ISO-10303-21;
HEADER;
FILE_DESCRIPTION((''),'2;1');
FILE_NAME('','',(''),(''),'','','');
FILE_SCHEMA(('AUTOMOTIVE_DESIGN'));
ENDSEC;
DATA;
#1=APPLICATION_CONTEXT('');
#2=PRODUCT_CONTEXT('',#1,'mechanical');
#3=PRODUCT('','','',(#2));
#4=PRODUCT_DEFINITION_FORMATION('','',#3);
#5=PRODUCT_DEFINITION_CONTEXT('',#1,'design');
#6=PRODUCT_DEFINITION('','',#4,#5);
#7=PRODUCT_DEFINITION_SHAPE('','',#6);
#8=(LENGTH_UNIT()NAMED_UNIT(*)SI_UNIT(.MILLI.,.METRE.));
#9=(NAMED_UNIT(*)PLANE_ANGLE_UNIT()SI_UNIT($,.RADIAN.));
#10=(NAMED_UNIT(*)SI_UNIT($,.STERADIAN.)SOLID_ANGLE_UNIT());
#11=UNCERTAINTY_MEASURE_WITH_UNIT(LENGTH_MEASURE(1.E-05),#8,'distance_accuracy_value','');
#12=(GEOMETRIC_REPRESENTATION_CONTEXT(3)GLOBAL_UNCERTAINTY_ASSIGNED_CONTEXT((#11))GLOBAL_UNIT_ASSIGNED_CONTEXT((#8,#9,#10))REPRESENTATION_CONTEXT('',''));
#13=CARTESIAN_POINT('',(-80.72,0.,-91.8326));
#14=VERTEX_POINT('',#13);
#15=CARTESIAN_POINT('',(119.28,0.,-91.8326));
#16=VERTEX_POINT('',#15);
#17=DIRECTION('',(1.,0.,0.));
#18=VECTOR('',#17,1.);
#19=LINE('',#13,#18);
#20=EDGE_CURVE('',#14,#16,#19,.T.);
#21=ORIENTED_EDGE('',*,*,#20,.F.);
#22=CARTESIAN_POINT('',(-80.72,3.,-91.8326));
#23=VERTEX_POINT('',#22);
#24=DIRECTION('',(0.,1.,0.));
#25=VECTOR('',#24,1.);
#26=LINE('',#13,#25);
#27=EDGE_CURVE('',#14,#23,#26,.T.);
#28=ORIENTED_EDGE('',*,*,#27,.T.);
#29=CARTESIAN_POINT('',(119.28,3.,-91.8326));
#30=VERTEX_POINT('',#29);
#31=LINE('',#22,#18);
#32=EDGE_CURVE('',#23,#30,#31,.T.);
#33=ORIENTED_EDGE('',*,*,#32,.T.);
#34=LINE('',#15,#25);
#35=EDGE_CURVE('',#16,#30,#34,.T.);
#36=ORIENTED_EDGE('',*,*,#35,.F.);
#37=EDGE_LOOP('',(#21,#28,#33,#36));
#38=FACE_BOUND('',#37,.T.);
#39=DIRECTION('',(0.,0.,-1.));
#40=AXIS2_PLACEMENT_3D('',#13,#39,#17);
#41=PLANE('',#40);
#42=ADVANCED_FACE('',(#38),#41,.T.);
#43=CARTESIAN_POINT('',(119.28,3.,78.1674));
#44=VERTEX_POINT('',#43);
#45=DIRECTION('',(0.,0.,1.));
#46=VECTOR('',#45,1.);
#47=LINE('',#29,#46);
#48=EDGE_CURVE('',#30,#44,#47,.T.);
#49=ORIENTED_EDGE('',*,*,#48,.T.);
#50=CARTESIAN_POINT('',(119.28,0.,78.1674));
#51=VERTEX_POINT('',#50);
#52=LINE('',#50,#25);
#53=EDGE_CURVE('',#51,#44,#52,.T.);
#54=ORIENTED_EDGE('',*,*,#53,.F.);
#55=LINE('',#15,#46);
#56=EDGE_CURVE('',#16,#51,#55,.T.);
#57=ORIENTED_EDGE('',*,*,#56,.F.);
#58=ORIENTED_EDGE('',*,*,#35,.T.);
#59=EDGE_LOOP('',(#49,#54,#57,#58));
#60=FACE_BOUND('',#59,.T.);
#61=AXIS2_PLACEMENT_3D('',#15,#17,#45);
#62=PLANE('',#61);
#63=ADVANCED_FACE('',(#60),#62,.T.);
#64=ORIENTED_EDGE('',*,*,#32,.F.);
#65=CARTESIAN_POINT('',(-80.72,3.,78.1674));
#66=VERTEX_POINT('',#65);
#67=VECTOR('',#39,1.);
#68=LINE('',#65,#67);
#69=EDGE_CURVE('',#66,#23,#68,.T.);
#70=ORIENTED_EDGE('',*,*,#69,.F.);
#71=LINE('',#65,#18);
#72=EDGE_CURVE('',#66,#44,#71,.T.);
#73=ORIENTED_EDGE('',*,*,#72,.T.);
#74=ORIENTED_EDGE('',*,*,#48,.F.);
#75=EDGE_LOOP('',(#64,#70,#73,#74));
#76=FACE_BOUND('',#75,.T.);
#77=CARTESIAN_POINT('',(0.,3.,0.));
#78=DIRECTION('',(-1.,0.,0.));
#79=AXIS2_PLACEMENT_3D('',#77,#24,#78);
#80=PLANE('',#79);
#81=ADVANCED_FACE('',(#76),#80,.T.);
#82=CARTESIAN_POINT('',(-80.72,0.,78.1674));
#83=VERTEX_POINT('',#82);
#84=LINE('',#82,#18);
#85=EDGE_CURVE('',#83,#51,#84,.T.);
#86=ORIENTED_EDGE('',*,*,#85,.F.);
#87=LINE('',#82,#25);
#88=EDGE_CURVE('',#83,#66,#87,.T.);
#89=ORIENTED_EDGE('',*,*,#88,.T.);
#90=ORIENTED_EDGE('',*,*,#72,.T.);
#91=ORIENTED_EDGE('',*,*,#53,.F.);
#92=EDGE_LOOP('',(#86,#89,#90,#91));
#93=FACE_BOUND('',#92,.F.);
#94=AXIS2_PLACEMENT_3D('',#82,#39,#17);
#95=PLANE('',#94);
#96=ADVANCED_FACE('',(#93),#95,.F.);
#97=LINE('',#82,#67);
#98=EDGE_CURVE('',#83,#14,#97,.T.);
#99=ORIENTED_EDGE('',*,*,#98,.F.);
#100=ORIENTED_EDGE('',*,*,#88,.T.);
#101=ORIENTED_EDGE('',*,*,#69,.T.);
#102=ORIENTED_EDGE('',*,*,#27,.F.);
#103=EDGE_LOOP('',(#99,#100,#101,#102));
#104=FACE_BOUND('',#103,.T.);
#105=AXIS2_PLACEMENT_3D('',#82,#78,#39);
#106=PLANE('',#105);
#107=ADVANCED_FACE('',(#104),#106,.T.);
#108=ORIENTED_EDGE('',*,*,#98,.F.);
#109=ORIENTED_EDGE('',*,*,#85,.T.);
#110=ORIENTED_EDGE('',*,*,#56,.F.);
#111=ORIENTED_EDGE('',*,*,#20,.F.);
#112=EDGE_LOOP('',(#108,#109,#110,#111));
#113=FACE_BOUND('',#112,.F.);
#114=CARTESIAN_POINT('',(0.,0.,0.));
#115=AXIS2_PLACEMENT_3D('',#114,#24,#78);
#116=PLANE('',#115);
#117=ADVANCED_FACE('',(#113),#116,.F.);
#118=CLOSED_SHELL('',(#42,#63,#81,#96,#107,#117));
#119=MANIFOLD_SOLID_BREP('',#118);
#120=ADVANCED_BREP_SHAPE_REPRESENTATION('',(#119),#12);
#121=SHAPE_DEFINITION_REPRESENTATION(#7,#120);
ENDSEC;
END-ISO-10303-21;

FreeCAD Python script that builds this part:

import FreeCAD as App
import Part
import Sketcher

doc = App.newDocument("Part")
params = doc.addObject("Spreadsheet::Sheet", "Params")
for row, (alias, value) in enumerate([
    ("sketch1_width", "200 mm"),
    ("sketch1_height", "170 mm"),
    ("pad1_length", "3 mm"),
], start=1):
    params.set(f"A{row}", alias)
    params.set(f"B{row}", "=" + value)
    params.setAlias(f"B{row}", alias)

body = doc.addObject("PartDesign::Body", "Body")

# Sketch on XZ plane
sketch1 = body.newObject("Sketcher::SketchObject", "Sketch")
sketch1.AttachmentSupport = (doc.getObject("XZ_Plane"), [""])
sketch1.MapMode = "FlatFace"
sketch1.addGeometry([
    Part.LineSegment(App.Vector(-81, -92, 0), App.Vector(-81, 78, 0)),
    Part.LineSegment(App.Vector(-81, 78, 0), App.Vector(119, 78, 0)),
    Part.LineSegment(App.Vector(119, 78, 0), App.Vector(119, -92, 0)),
    Part.LineSegment(App.Vector(119, -92, 0), App.Vector(-81, -92, 0)),
], False)
sketch1.addConstraint([
    Sketcher.Constraint("Coincident", 0, 2, 1, 1),
    Sketcher.Constraint("Coincident", 1, 2, 2, 1),
    Sketcher.Constraint("Coincident", 2, 2, 3, 1),
    Sketcher.Constraint("Coincident", 3, 2, 0, 1),
    Sketcher.Constraint("Vertical", 0),
    Sketcher.Constraint("Horizontal", 1),
    Sketcher.Constraint("Vertical", 2),
    Sketcher.Constraint("Horizontal", 3),
    Sketcher.Constraint("DistanceX", 1, 1, 1, 2, 200.0),
    Sketcher.Constraint("DistanceY", 0, 1, 0, 2, 170.0),
    Sketcher.Constraint("DistanceX", 0, 2, -1, 1, 80.72),
    Sketcher.Constraint("DistanceY", -1, 1, 0, 2, 78.1674),
])
sketch1.setExpression("Constraints[8]", "Params.sketch1_width")
sketch1.setExpression("Constraints[9]", "Params.sketch1_height")
pad1 = body.newObject("PartDesign::Pad", "Pad")
pad1.Profile = sketch1
pad1.setExpression("Length", "Params.pad1_length")
pad1.Reversed = True

doc.recompute()
